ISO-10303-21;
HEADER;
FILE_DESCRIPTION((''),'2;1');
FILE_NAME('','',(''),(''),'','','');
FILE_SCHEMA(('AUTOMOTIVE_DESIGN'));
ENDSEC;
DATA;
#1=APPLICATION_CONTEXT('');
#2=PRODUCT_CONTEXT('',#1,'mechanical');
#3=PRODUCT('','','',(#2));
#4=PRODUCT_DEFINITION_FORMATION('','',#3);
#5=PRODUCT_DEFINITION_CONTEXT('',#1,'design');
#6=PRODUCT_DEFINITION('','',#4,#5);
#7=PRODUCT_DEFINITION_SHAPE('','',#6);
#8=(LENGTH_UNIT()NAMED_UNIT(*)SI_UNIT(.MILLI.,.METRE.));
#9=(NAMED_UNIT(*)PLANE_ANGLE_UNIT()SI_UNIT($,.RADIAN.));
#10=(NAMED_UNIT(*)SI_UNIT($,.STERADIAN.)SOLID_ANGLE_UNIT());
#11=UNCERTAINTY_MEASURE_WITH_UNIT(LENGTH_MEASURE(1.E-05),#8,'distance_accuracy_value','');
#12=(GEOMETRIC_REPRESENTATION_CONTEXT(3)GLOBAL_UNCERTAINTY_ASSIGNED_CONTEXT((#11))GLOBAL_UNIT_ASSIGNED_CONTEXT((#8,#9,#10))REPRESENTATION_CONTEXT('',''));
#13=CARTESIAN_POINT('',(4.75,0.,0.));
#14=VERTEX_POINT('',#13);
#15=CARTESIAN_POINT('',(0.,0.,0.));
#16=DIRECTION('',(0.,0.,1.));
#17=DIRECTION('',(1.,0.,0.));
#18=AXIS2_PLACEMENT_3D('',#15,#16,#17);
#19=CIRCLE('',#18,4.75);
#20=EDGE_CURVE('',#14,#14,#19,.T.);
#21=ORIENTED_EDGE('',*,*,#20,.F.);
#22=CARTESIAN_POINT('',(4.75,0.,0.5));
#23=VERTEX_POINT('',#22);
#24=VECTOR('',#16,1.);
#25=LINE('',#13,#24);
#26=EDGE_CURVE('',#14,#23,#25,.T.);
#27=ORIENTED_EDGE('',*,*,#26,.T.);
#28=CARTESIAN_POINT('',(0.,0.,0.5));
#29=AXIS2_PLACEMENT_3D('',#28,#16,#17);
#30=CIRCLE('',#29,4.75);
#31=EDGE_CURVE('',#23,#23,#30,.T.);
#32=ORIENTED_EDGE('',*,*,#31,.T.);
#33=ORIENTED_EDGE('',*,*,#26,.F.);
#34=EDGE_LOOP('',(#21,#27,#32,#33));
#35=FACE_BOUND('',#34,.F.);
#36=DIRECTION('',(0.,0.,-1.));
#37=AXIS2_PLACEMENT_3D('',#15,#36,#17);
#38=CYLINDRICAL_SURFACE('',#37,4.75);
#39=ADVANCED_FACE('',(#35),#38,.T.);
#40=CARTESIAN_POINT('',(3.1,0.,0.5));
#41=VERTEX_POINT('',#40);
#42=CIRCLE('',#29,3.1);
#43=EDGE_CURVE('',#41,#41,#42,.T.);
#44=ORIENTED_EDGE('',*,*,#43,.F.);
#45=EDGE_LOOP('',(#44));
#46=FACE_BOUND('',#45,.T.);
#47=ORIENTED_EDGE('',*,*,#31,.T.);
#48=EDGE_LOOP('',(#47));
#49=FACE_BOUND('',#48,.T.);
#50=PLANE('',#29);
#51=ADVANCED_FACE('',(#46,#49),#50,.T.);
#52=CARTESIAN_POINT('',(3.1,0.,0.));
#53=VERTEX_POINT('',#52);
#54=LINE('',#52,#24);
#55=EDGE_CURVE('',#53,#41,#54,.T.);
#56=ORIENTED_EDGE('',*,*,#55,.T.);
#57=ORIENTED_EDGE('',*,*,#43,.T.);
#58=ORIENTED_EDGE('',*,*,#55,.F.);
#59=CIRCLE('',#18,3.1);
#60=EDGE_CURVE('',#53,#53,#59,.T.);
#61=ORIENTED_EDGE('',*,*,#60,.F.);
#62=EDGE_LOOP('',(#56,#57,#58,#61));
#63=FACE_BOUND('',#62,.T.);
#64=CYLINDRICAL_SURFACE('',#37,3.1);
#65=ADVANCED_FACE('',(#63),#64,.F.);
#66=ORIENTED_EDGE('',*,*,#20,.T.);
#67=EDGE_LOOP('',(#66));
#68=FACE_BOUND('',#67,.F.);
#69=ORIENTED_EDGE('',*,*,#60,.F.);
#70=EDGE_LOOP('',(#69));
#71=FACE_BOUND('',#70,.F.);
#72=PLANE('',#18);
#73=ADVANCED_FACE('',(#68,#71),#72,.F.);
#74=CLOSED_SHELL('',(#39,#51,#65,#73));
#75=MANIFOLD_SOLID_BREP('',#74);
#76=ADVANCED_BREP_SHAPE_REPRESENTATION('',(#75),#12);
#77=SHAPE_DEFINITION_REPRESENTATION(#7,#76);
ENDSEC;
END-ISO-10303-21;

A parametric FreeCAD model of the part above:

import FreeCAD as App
import Part
import Sketcher
from FreeCAD import Vector

doc = App.newDocument("Part")
params = doc.addObject("Spreadsheet::Sheet", "Params")
for row, (alias, value) in enumerate([
    ("sketch1_diameter", "9.5 mm"),
    ("sketch1_diameter2", "6.2 mm"),
    ("pad1_length", "0.5 mm"),
], start=1):
    params.set(f"A{row}", alias)
    params.set(f"B{row}", "=" + value)
    params.setAlias(f"B{row}", alias)

body = doc.addObject("PartDesign::Body", "Body")

# Sketch on XY plane
sketch1 = body.newObject("Sketcher::SketchObject", "Sketch")
sketch1.AttachmentSupport = (doc.getObject("XY_Plane"), [""])
sketch1.MapMode = "FlatFace"
sketch1.addGeometry([
    Part.Circle(Vector(0, 0, 0), Vector(0, 0, 1), 4.75),
    Part.Circle(Vector(0, 0, 0), Vector(0, 0, 1), 3.1),
], False)
sketch1.addConstraint([
    Sketcher.Constraint("Coincident", 0, 3, -1, 1),
    Sketcher.Constraint("Coincident", 1, 3, -1, 1),
    Sketcher.Constraint("Diameter", 0, 9.5),
    Sketcher.Constraint("Diameter", 1, 6.2),
])
sketch1.setExpression("Constraints[2]", "Params.sketch1_diameter")
sketch1.setExpression("Constraints[3]", "Params.sketch1_diameter2")
pad1 = body.newObject("PartDesign::Pad", "Pad")
pad1.Profile = sketch1
pad1.setExpression("Length", "Params.pad1_length")

doc.recompute()
